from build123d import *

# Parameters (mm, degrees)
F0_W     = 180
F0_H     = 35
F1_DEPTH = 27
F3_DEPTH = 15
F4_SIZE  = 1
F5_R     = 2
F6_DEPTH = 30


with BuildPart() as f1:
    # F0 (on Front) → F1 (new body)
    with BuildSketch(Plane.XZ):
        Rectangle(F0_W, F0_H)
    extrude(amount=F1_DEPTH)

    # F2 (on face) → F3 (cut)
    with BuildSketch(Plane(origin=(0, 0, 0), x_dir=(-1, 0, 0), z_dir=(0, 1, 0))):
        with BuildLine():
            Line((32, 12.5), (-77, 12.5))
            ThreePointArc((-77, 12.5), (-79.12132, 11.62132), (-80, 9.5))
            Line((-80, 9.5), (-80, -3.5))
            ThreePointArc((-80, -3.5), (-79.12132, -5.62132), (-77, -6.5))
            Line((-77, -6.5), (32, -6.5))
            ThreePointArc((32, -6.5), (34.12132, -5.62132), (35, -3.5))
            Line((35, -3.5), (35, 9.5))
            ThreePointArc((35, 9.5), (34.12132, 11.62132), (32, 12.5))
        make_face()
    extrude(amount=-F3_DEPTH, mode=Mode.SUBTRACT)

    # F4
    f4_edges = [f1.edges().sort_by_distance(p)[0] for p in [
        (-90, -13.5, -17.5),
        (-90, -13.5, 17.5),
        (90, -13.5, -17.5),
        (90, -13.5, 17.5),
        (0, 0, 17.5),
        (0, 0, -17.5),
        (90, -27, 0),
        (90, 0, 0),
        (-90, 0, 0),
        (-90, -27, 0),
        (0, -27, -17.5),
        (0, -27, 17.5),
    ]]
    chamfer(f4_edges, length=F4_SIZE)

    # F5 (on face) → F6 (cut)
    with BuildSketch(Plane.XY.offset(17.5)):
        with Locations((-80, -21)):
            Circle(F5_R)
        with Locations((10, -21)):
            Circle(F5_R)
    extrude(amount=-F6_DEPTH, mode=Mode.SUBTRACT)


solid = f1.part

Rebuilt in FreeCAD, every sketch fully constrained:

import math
import FreeCAD as App
import Part
import Sketcher
from FreeCAD import Vector


def edges_at(feature, points):
    """Names of the edges that pass closest to the given points."""
    edges = feature.Shape.Edges
    near = lambda p: min(range(len(edges)), key=lambda i: edges[i].distToShape(Part.Vertex(*p))[0])
    return sorted({f"Edge{near(p) + 1}" for p in points})

doc = App.newDocument("Part")
body = doc.addObject("PartDesign::Body", "Body")

# Sketch on XZ plane
sketch1 = body.newObject("Sketcher::SketchObject", "Sketch")
sketch1.AttachmentSupport = (doc.getObject("XZ_Plane"), [""])
sketch1.MapMode = "FlatFace"
sketch1.addGeometry([
    Part.LineSegment(Vector(-90, 17.5, 0), Vector(-90, -17.5, 0)),
    Part.LineSegment(Vector(-90, -17.5, 0), Vector(90, -17.5, 0)),
    Part.LineSegment(Vector(90, -17.5, 0), Vector(90, 17.5, 0)),
    Part.LineSegment(Vector(90, 17.5, 0), Vector(-90, 17.5, 0)),
], False)
sketch1.addConstraint([
    Sketcher.Constraint("Coincident", 0, 2, 1, 1),
    Sketcher.Constraint("Coincident", 1, 2, 2, 1),
    Sketcher.Constraint("Coincident", 2, 2, 3, 1),
    Sketcher.Constraint("Coincident", 3, 2, 0, 1),
    Sketcher.Constraint("Vertical", 0),
    Sketcher.Constraint("Horizontal", 1),
    Sketcher.Constraint("Vertical", 2),
    Sketcher.Constraint("Horizontal", 3),
    Sketcher.Constraint("Symmetric", 0, 2, 2, 2, -1, 1),
    Sketcher.Constraint("DistanceX", 1, 1, 1, 2, 180.0),
    Sketcher.Constraint("DistanceY", 0, 2, 0, 1, 35.0),
])
pad1 = body.newObject("PartDesign::Pad", "Pad")
pad1.Profile = sketch1
pad1.Length = 27

# Sketch on XZ plane
sketch2 = body.newObject("Sketcher::SketchObject", "Sketch001")
sketch2.AttachmentSupport = (doc.getObject("XZ_Plane"), [""])
sketch2.MapMode = "FlatFace"
sketch2.addGeometry([
    Part.LineSegment(Vector(-32, 12.5, 0), Vector(77, 12.5, 0)),  # 0
    Part.ArcOfCircle(Part.Circle(Vector(76.999999, 9.499999, 0), Vector(0, 0, 1), 3.000001), math.radians(0.000022), math.radians(89.999978)),  # 1
    Part.LineSegment(Vector(80, 9.5, 0), Vector(80, -3.5, 0)),  # 2
    Part.ArcOfCircle(Part.Circle(Vector(76.999999, -3.499999, 0), Vector(0, 0, 1), 3.000001), math.radians(-89.999978), math.radians(-0.000022)),  # 3
    Part.LineSegment(Vector(77, -6.5, 0), Vector(-32, -6.5, 0)),  # 4
    Part.ArcOfCircle(Part.Circle(Vector(-31.999999, -3.499999, 0), Vector(0, 0, 1), 3.000001), math.radians(-179.999978), math.radians(-90.000022)),  # 5
    Part.LineSegment(Vector(-35, -3.5, 0), Vector(-35, 9.5, 0)),  # 6
    Part.ArcOfCircle(Part.Circle(Vector(-31.999999, 9.499999, 0), Vector(0, 0, 1), 3.000001), math.radians(90.000022), math.radians(179.999978)),  # 7
], False)
sketch2.addConstraint([
    Sketcher.Constraint("Tangent", 0, 2, 1, 2),
    Sketcher.Constraint("Tangent", 1, 1, 2, 1),
    Sketcher.Constraint("Tangent", 2, 2, 3, 2),
    Sketcher.Constraint("Tangent", 3, 1, 4, 1),
    Sketcher.Constraint("Tangent", 4, 2, 5, 2),
    Sketcher.Constraint("Tangent", 5, 1, 6, 1),
    Sketcher.Constraint("Tangent", 6, 2, 7, 2),
    Sketcher.Constraint("Tangent", 7, 1, 0, 1),
    Sketcher.Constraint("Horizontal", 0),
    Sketcher.Constraint("Vertical", 2),
    Sketcher.Constraint("Horizontal", 4),
    Sketcher.Constraint("Vertical", 6),
    Sketcher.Constraint("Equal", 1, 3),
    Sketcher.Constraint("Equal", 3, 5),
    Sketcher.Constraint("Equal", 5, 7),
    Sketcher.Constraint("Radius", 1, 3.000001),
    Sketcher.Constraint("DistanceX", 0, 1, 0, 2, 109.0),
    Sketcher.Constraint("DistanceY", 2, 2, 2, 1, 13.0),
    Sketcher.Constraint("DistanceX", -1, 1, 1, 3, 76.999999),
    Sketcher.Constraint("DistanceY", -1, 1, 1, 3, 9.499999),
])
pocket1 = body.newObject("PartDesign::Pocket", "Pocket")
pocket1.Profile = sketch2
pocket1.Length = 15
pocket1.Reversed = True
doc.recompute()

chamfer = body.newObject("PartDesign::Chamfer", "Chamfer")
chamfer.Base = (pocket1, edges_at(pocket1, [
    (-90, -13.5, -17.5),
    (-90, -13.5, 17.5),
    (90, -13.5, -17.5),
    (90, -13.5, 17.5),
    (0, 0, 17.5),
    (0, 0, -17.5),
    (90, -27, 0),
    (90, 0, 0),
    (-90, 0, 0),
    (-90, -27, 0),
    (0, -27, -17.5),
    (0, -27, 17.5),
]))
chamfer.Size = 1

# Sketch on XY plane
sketch3 = body.newObject("Sketcher::SketchObject", "Sketch002")
sketch3.AttachmentSupport = (doc.getObject("XY_Plane"), [""])
sketch3.MapMode = "FlatFace"
sketch3.AttachmentOffset = App.Placement(Vector(0, 0, 17.5), App.Rotation())
sketch3.addGeometry([
    Part.Circle(Vector(-80, -21, 0), Vector(0, 0, 1), 2),
    Part.Circle(Vector(10, -21, 0), Vector(0, 0, 1), 2),
], False)
sketch3.addConstraint([
    Sketcher.Constraint("Equal", 0, 1),
    Sketcher.Constraint("Horizontal", 0, 3, 1, 3),
    Sketcher.Constraint("Diameter", 0, 4.0),
    Sketcher.Constraint("DistanceX", 0, 3, -1, 1, 80.0),
    Sketcher.Constraint("DistanceY", 0, 3, -1, 1, 21.0),
    Sketcher.Constraint("DistanceX", -1, 1, 1, 3, 10.0),
])
pocket2 = body.newObject("PartDesign::Pocket", "Pocket001")
pocket2.Profile = sketch3
pocket2.Length = 30

doc.recompute()
